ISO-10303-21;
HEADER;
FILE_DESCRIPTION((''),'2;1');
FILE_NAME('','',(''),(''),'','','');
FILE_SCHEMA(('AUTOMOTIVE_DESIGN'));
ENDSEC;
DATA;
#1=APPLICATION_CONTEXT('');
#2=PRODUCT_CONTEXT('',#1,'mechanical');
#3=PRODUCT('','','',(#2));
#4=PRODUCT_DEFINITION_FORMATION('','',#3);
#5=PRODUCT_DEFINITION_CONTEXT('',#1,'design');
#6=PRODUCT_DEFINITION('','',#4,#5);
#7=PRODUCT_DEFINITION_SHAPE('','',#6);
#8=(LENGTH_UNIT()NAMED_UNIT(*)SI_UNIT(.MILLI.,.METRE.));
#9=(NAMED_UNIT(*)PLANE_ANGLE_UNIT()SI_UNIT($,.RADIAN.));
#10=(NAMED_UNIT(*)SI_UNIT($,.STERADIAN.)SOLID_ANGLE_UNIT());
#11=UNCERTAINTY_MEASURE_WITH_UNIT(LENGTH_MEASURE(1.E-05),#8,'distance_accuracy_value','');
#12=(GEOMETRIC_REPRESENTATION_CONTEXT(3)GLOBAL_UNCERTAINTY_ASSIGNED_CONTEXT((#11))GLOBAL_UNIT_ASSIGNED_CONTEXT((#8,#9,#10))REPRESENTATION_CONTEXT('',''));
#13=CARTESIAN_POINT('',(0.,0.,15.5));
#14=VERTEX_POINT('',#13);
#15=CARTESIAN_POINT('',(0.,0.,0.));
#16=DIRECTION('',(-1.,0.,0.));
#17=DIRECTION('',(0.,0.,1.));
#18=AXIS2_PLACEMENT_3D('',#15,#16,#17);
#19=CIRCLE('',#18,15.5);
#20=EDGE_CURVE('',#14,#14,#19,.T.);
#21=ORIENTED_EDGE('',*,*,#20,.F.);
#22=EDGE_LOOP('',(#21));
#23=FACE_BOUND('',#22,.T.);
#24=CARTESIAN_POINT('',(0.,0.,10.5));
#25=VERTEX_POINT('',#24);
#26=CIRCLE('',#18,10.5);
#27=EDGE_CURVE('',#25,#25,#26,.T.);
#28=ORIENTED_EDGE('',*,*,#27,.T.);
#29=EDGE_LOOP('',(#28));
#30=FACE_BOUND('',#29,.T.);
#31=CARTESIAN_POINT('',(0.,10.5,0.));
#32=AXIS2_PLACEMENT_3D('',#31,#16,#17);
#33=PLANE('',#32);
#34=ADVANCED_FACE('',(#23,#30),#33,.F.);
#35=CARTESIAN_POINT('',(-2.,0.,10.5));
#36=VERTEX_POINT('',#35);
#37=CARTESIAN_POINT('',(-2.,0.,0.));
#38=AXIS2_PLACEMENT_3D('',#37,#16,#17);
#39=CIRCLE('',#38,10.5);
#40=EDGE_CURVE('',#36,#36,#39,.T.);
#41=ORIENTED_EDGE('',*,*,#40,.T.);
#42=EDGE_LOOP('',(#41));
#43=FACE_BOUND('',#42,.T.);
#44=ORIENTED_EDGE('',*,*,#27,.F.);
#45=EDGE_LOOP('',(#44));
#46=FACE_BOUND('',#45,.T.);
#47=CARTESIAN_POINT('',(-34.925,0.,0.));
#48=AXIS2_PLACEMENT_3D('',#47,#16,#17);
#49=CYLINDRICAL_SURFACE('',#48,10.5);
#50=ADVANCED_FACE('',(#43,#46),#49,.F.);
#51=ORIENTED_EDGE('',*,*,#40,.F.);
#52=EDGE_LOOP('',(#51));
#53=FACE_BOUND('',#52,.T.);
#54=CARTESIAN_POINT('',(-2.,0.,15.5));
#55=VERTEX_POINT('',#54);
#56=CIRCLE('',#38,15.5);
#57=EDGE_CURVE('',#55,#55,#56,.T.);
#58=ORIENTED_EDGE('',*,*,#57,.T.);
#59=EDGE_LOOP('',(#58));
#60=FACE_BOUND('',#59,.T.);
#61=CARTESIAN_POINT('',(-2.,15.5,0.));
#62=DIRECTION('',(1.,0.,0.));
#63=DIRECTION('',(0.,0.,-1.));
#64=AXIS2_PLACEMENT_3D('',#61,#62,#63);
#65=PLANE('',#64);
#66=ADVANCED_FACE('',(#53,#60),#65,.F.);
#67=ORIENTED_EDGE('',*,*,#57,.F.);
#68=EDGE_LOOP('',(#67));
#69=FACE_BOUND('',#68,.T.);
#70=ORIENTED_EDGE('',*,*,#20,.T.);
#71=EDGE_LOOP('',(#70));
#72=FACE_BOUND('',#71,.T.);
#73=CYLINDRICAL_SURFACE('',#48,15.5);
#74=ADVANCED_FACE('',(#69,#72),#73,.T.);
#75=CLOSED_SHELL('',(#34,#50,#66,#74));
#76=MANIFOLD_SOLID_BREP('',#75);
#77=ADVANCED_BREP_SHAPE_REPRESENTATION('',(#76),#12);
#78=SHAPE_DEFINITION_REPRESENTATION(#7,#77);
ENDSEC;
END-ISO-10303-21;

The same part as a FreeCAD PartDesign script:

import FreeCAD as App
import Part
import Sketcher

V = App.Vector

doc = App.newDocument("Part")
body = doc.addObject("PartDesign::Body", "Body")

# Sketch on XY plane
sketch1 = body.newObject("Sketcher::SketchObject", "Sketch")
sketch1.AttachmentSupport = (doc.getObject("XY_Plane"), [""])
sketch1.MapMode = "FlatFace"
sketch1.addGeometry([
    Part.LineSegment(V(-2, 15.5, 0), V(-2, 10.5, 0)),
    Part.LineSegment(V(-2, 10.5, 0), V(0, 10.5, 0)),
    Part.LineSegment(V(0, 10.5, 0), V(0, 15.5, 0)),
    Part.LineSegment(V(0, 15.5, 0), V(-2, 15.5, 0)),
], False)
sketch1.addConstraint([
    Sketcher.Constraint("Coincident", 0, 2, 1, 1),
    Sketcher.Constraint("Coincident", 1, 2, 2, 1),
    Sketcher.Constraint("Coincident", 2, 2, 3, 1),
    Sketcher.Constraint("Coincident", 3, 2, 0, 1),
    Sketcher.Constraint("Vertical", 0),
    Sketcher.Constraint("Horizontal", 1),
    Sketcher.Constraint("Vertical", 2),
    Sketcher.Constraint("Horizontal", 3),
    Sketcher.Constraint("PointOnObject", 1, 2, -2),
    Sketcher.Constraint("DistanceX", 1, 1, 1, 2, 2.0),
    Sketcher.Constraint("DistanceY", 0, 2, 0, 1, 5.0),
    Sketcher.Constraint("DistanceY", -1, 1, 0, 2, 10.5),
])
revolution = body.newObject("PartDesign::Revolution", "Revolution")
revolution.Profile = sketch1
revolution.ReferenceAxis = (sketch1, ["H_Axis"])
revolution.Angle = 360

doc.recompute()
